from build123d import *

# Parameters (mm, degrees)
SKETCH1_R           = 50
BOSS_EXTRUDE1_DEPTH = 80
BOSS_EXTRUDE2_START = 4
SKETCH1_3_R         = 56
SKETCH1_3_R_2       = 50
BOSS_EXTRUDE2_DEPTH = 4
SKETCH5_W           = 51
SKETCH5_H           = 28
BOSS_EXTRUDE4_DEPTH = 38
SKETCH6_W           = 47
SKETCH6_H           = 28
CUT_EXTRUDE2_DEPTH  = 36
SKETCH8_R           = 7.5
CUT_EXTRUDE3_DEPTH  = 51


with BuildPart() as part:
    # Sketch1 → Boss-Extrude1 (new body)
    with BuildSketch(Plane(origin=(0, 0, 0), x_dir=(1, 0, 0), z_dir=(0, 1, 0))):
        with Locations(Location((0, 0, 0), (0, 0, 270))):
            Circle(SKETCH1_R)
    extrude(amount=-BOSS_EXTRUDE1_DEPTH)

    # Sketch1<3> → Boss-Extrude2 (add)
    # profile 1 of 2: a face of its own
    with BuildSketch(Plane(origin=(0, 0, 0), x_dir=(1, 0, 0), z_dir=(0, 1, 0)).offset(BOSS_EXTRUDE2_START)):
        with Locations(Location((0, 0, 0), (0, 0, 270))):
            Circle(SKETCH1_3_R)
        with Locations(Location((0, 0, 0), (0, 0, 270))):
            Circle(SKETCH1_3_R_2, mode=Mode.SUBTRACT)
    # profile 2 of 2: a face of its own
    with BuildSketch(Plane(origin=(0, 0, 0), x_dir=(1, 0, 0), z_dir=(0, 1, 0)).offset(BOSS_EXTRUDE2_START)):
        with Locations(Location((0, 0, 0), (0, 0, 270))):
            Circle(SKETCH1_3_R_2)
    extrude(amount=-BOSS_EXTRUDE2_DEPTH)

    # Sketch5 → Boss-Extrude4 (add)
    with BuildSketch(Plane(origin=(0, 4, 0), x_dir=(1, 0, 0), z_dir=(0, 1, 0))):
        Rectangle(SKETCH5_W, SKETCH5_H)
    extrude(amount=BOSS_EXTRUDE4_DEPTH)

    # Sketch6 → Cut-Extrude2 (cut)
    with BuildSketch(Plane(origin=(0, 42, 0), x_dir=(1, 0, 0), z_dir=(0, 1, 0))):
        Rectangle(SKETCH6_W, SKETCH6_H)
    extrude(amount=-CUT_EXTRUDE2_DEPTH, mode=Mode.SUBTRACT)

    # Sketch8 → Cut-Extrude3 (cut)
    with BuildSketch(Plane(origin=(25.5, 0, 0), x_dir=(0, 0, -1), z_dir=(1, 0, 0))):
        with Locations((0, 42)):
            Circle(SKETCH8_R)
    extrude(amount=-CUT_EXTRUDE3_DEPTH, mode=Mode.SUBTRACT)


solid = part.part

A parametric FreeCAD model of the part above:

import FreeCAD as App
import Part
import Sketcher
Q = App.Units.Quantity

doc = App.newDocument("Part")
body = doc.addObject("PartDesign::Body", "Body")

sketch1 = body.newObject("Sketcher::SketchObject", "Sketch")
sketch1.AttachmentSupport = (doc.getObject("XZ_Plane"), [""])
sketch1.MapMode = "FlatFace"
sketch1.addGeometry(Part.Circle(App.Vector(0, 0, 0), App.Vector(0, 0, 1), 50), False)
sketch1.addConstraint([
    Sketcher.Constraint("Coincident", 0, 3, -1, 1),
    Sketcher.Constraint("Diameter", 0, Q("100 mm")),
])
pad1 = body.newObject("PartDesign::Pad", "Pad")
pad1.Profile = sketch1
pad1.Length = 80

sketch2 = body.newObject("Sketcher::SketchObject", "Sketch001")
sketch2.AttachmentSupport = (doc.getObject("XZ_Plane"), [""])
sketch2.MapMode = "FlatFace"
sketch2.AttachmentOffset = App.Placement(App.Vector(0, 0, -4), App.Rotation())
sketch2.addGeometry(Part.Circle(App.Vector(0, 0, 0), App.Vector(0, 0, 1), 56), False)
sketch2.addConstraint([
    Sketcher.Constraint("Coincident", 0, 3, -1, 1),
    Sketcher.Constraint("Diameter", 0, Q("112 mm")),
])
pad2 = body.newObject("PartDesign::Pad", "Pad001")
pad2.Profile = sketch2
pad2.Length = 4

sketch3 = body.newObject("Sketcher::SketchObject", "Sketch002")
sketch3.AttachmentSupport = (doc.getObject("XZ_Plane"), [""])
sketch3.MapMode = "FlatFace"
sketch3.AttachmentOffset = App.Placement(App.Vector(0, 0, -4), App.Rotation())
sketch3.addGeometry([
    Part.LineSegment(App.Vector(-25.5, -14, 0), App.Vector(-25.5, 14, 0)),
    Part.LineSegment(App.Vector(-25.5, 14, 0), App.Vector(25.5, 14, 0)),
    Part.LineSegment(App.Vector(25.5, 14, 0), App.Vector(25.5, -14, 0)),
    Part.LineSegment(App.Vector(25.5, -14, 0), App.Vector(-25.5, -14, 0)),
], False)
sketch3.addConstraint([
    Sketcher.Constraint("Coincident", 0, 2, 1, 1),
    Sketcher.Constraint("Coincident", 1, 2, 2, 1),
    Sketcher.Constraint("Coincident", 2, 2, 3, 1),
    Sketcher.Constraint("Coincident", 3, 2, 0, 1),
    Sketcher.Constraint("Vertical", 0),
    Sketcher.Constraint("Horizontal", 1),
    Sketcher.Constraint("Vertical", 2),
    Sketcher.Constraint("Horizontal", 3),
    Sketcher.Constraint("Symmetric", 0, 2, 2, 2, -1, 1),
    Sketcher.Constraint("DistanceX", 1, 1, 1, 2, Q("51 mm")),
    Sketcher.Constraint("DistanceY", 0, 1, 0, 2, Q("28 mm")),
])
pad3 = body.newObject("PartDesign::Pad", "Pad002")
pad3.Profile = sketch3
pad3.Length = 38
pad3.Reversed = True

sketch4 = body.newObject("Sketcher::SketchObject", "Sketch003")
sketch4.AttachmentSupport = (doc.getObject("XZ_Plane"), [""])
sketch4.MapMode = "FlatFace"
sketch4.AttachmentOffset = App.Placement(App.Vector(0, 0, -42), App.Rotation())
sketch4.addGeometry([
    Part.LineSegment(App.Vector(-23.5, -14, 0), App.Vector(-23.5, 14, 0)),
    Part.LineSegment(App.Vector(-23.5, 14, 0), App.Vector(23.5, 14, 0)),
    Part.LineSegment(App.Vector(23.5, 14, 0), App.Vector(23.5, -14, 0)),
    Part.LineSegment(App.Vector(23.5, -14, 0), App.Vector(-23.5, -14, 0)),
], False)
sketch4.addConstraint([
    Sketcher.Constraint("Coincident", 0, 2, 1, 1),
    Sketcher.Constraint("Coincident", 1, 2, 2, 1),
    Sketcher.Constraint("Coincident", 2, 2, 3, 1),
    Sketcher.Constraint("Coincident", 3, 2, 0, 1),
    Sketcher.Constraint("Vertical", 0),
    Sketcher.Constraint("Horizontal", 1),
    Sketcher.Constraint("Vertical", 2),
    Sketcher.Constraint("Horizontal", 3),
    Sketcher.Constraint("Symmetric", 0, 2, 2, 2, -1, 1),
    Sketcher.Constraint("DistanceX", 1, 1, 1, 2, Q("47 mm")),
    Sketcher.Constraint("DistanceY", 0, 1, 0, 2, Q("28 mm")),
])
pocket1 = body.newObject("PartDesign::Pocket", "Pocket")
pocket1.Profile = sketch4
pocket1.Length = 36
pocket1.Reversed = True

sketch5 = body.newObject("Sketcher::SketchObject", "Sketch004")
sketch5.AttachmentSupport = (doc.getObject("YZ_Plane"), [""])
sketch5.MapMode = "FlatFace"
sketch5.AttachmentOffset = App.Placement(App.Vector(0, 0, 25.5), App.Rotation())
sketch5.addGeometry(Part.Circle(App.Vector(42, 0, 0), App.Vector(0, 0, 1), 7.5), False)
sketch5.addConstraint([
    Sketcher.Constraint("PointOnObject", 0, 3, -1),
    Sketcher.Constraint("Diameter", 0, Q("15 mm")),
    Sketcher.Constraint("DistanceX", -1, 1, 0, 3, Q("42 mm")),
])
pocket2 = body.newObject("PartDesign::Pocket", "Pocket001")
pocket2.Profile = sketch5
pocket2.Length = 51

doc.recompute()
